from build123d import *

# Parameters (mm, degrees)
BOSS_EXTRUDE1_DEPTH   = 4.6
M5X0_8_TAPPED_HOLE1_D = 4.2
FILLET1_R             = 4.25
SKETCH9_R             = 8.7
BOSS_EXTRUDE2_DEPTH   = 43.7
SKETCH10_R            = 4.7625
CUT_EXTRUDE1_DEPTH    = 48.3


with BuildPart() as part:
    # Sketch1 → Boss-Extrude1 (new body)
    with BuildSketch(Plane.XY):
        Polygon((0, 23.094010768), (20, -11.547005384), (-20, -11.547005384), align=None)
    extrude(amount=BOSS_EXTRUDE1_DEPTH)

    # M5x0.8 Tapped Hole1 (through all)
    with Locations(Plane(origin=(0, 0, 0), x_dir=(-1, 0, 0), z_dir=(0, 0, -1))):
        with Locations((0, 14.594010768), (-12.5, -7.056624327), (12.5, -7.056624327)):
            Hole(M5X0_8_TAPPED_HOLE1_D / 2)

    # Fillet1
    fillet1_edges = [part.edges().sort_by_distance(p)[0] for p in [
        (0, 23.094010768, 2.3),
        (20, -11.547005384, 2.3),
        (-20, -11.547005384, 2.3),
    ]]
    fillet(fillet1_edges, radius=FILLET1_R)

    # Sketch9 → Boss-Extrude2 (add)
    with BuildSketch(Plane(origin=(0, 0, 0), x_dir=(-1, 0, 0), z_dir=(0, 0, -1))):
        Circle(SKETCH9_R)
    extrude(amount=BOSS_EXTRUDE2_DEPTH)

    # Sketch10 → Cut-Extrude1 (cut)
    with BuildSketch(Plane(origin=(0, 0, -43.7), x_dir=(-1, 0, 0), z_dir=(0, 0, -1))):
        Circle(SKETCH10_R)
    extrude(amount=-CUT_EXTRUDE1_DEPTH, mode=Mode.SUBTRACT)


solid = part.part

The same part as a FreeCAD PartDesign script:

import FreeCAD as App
import Part
import Sketcher
Q = App.Units.Quantity


def edges_at(feature, points):
    """Names of the edges that pass closest to the given points."""
    edges = feature.Shape.Edges
    near = lambda p: min(range(len(edges)), key=lambda i: edges[i].distToShape(Part.Vertex(*p))[0])
    return sorted({f"Edge{near(p) + 1}" for p in points})


def add_polygon(sketch, points):
    """Adds a closed chain of lines whose ends are joined by coincident constraints."""
    first, n = sketch.GeometryCount, len(points)
    for a, b in zip(points, points[1:] + points[:1]):
        sketch.addGeometry(Part.LineSegment(App.Vector(*a, 0), App.Vector(*b, 0)), False)
    for i in range(n):
        sketch.addConstraint(Sketcher.Constraint("Coincident", first + i, 2, first + (i + 1) % n, 1))

doc = App.newDocument("Part")
body = doc.addObject("PartDesign::Body", "Body")

sketch1 = body.newObject("Sketcher::SketchObject", "Sketch")
sketch1.AttachmentSupport = (doc.getObject("XY_Plane"), [""])
sketch1.MapMode = "FlatFace"
add_polygon(sketch1, [(20, -12), (0, 23), (-20, -12)])
sketch1.addConstraint([
    Sketcher.Constraint("Horizontal", 2),
    Sketcher.Constraint("PointOnObject", 0, 2, -2),
    Sketcher.Constraint("Equal", 0, 1),
    Sketcher.Constraint("DistanceX", 2, 1, 2, 2, Q("40 mm")),
    Sketcher.Constraint("Angle", 0, Q("120 deg")),
    Sketcher.Constraint("DistanceY", -1, 1, 0, 2, Q("23.094011 mm")),
])
pad1 = body.newObject("PartDesign::Pad", "Pad")
pad1.Profile = sketch1
pad1.Length = 4.6

sketch2 = body.newObject("Sketcher::SketchObject", "Sketch001")
sketch2.AttachmentSupport = (doc.getObject("XY_Plane"), [""])
sketch2.MapMode = "FlatFace"
sketch2.addGeometry([
    Part.Circle(App.Vector(0, 14.6, 0), App.Vector(0, 0, 1), 2.1),
    Part.Circle(App.Vector(12.5, -7.1, 0), App.Vector(0, 0, 1), 2.1),
    Part.Circle(App.Vector(-12.5, -7.1, 0), App.Vector(0, 0, 1), 2.1),
], False)
sketch2.addConstraint([
    Sketcher.Constraint("Equal", 0, 1),
    Sketcher.Constraint("Equal", 1, 2),
    Sketcher.Constraint("Symmetric", 1, 3, 2, 3, -2),
    Sketcher.Constraint("PointOnObject", 0, 3, -2),
    Sketcher.Constraint("Diameter", 0, Q("4.2 mm")),
    Sketcher.Constraint("DistanceX", 2, 3, 1, 3, Q("25 mm")),
    Sketcher.Constraint("DistanceY", -1, 1, 0, 3, Q("14.594011 mm")),
    Sketcher.Constraint("DistanceY", 1, 3, -1, 1, Q("7.056624 mm")),
])
doc.recompute()
hole = body.newObject("PartDesign::Hole", "Hole")
hole.Profile = sketch2
hole.ThreadType = "None"
hole.Diameter = 4.2
hole.DepthType = "ThroughAll"
hole.Reversed = True
doc.recompute()

fillet = body.newObject("PartDesign::Fillet", "Fillet")
fillet.Base = (hole, edges_at(hole, [(0, 23.094, 2.3), (20, -11.547, 2.3), (-20, -11.547, 2.3)]))
fillet.Radius = 4.25

sketch3 = body.newObject("Sketcher::SketchObject", "Sketch002")
sketch3.AttachmentSupport = (doc.getObject("XY_Plane"), [""])
sketch3.MapMode = "FlatFace"
sketch3.addGeometry(Part.Circle(App.Vector(0, 0, 0), App.Vector(0, 0, 1), 9), False)
sketch3.addConstraint([
    Sketcher.Constraint("Coincident", 0, 3, -1, 1),
    Sketcher.Constraint("Diameter", 0, Q("17.4 mm")),
])
pad2 = body.newObject("PartDesign::Pad", "Pad001")
pad2.Profile = sketch3
pad2.Length = 43.7
pad2.Reversed = True

sketch4 = body.newObject("Sketcher::SketchObject", "Sketch003")
sketch4.AttachmentSupport = (doc.getObject("XY_Plane"), [""])
sketch4.MapMode = "FlatFace"
sketch4.AttachmentOffset = App.Placement(App.Vector(0, 0, -43.7), App.Rotation())
sketch4.addGeometry(Part.Circle(App.Vector(0, 0, 0), App.Vector(0, 0, 1), 4.8), False)
sketch4.addConstraint([
    Sketcher.Constraint("Coincident", 0, 3, -1, 1),
    Sketcher.Constraint("Diameter", 0, Q("9.525 mm")),
])
pocket1 = body.newObject("PartDesign::Pocket", "Pocket")
pocket1.Profile = sketch4
pocket1.Length = 48.3
pocket1.Reversed = True

doc.recompute()
